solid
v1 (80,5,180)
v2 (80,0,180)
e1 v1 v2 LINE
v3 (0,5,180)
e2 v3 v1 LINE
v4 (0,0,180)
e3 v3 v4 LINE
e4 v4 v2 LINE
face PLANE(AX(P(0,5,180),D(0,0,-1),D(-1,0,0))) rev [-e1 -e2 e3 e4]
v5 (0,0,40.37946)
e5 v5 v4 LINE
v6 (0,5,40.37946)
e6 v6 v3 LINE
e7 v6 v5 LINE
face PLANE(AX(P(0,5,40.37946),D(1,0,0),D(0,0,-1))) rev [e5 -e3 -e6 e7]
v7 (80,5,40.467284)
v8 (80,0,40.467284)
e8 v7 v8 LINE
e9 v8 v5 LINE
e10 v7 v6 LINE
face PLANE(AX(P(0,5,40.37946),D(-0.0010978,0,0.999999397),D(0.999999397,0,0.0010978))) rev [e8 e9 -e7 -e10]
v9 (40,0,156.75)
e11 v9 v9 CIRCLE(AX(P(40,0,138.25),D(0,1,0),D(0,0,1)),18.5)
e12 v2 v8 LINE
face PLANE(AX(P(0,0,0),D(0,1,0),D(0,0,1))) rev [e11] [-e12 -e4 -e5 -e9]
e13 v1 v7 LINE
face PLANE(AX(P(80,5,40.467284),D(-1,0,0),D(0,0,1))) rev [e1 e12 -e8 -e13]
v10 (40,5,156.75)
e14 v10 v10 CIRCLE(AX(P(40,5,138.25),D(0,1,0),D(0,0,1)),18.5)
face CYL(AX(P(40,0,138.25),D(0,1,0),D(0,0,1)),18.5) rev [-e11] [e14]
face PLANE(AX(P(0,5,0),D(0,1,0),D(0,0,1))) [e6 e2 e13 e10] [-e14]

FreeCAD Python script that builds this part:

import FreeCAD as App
import Part
import Sketcher
from FreeCAD import Vector
Q = App.Units.Quantity


def add_polygon(sketch, points):
    """Adds a closed chain of lines whose ends are joined by coincident constraints."""
    first, n = sketch.GeometryCount, len(points)
    for a, b in zip(points, points[1:] + points[:1]):
        sketch.addGeometry(Part.LineSegment(App.Vector(*a, 0), App.Vector(*b, 0)), False)
    for i in range(n):
        sketch.addConstraint(Sketcher.Constraint("Coincident", first + i, 2, first + (i + 1) % n, 1))

doc = App.newDocument("Part")
body = doc.addObject("PartDesign::Body", "Body")

sketch1 = body.newObject("Sketcher::SketchObject", "Sketch")
sketch1.AttachmentSupport = (doc.getObject("XZ_Plane"), [""])
sketch1.MapMode = "FlatFace"
add_polygon(sketch1, [(80, 40.467284), (0, 40.37946), (0, 180), (80, 180)])
sketch1.addGeometry(Part.Circle(Vector(55.5, 138.25, 0), Vector(0, 0, 1), 1.525), False)
sketch1.addGeometry(Part.Circle(Vector(24.5, 138.25, 0), Vector(0, 0, 1), 1.525), False)
sketch1.addGeometry(Part.Circle(Vector(47.75, 124.826606, 0), Vector(0, 0, 1), 1.525), False)
sketch1.addGeometry(Part.Circle(Vector(40, 131.25, 0), Vector(0, 0, 1), 6), False)
sketch1.addGeometry(Part.Circle(Vector(32.25, 124.826606, 0), Vector(0, 0, 1), 1.525), False)
sketch1.addConstraint([
    Sketcher.Constraint("Vertical", 1),
    Sketcher.Constraint("Horizontal", 2),
    Sketcher.Constraint("Vertical", 3),
    Sketcher.Constraint("Equal", 4, 5),
    Sketcher.Constraint("Equal", 5, 6),
    Sketcher.Constraint("Equal", 6, 8),
    Sketcher.Constraint("PointOnObject", 0, 2, -2),
    Sketcher.Constraint("Horizontal", 4, 3, 5, 3),
    Sketcher.Constraint("Horizontal", 6, 3, 8, 3),
    Sketcher.Constraint("Diameter", 7, Q("12 mm")),
    Sketcher.Constraint("Diameter", 4, Q("3.05 mm")),
    Sketcher.Constraint("DistanceX", 2, 1, 2, 2, Q("80 mm")),
    Sketcher.Constraint("DistanceX", -1, 1, 7, 3, Q("40 mm")),
    Sketcher.Constraint("DistanceY", -1, 1, 1, 2, Q("180 mm")),
    Sketcher.Constraint("DistanceX", 5, 3, 4, 3, Q("31 mm")),
    Sketcher.Constraint("DistanceY", 7, 3, 4, 3, Q("7 mm")),
    Sketcher.Constraint("DistanceX", -1, 1, 4, 3, Q("55.5 mm")),
    Sketcher.Constraint("DistanceX", 8, 3, 6, 3, Q("15.5 mm")),
    Sketcher.Constraint("DistanceY", -1, 1, 4, 3, Q("138.25 mm")),
    Sketcher.Constraint("DistanceX", -1, 1, 6, 3, Q("47.75 mm")),
    Sketcher.Constraint("DistanceY", 1, 1, 1, 2, Q("139.62054 mm")),
    Sketcher.Constraint("DistanceY", 3, 2, 3, 1, Q("139.532716 mm")),
    Sketcher.Constraint("DistanceY", -1, 1, 6, 3, Q("124.826606 mm")),
])
pad1 = body.newObject("PartDesign::Pad", "Pad")
pad1.Profile = sketch1
pad1.Length = 5
pad1.Reversed = True

sketch2 = body.newObject("Sketcher::SketchObject", "Sketch001")
sketch2.AttachmentSupport = (doc.getObject("XZ_Plane"), [""])
sketch2.MapMode = "FlatFace"
sketch2.AttachmentOffset = App.Placement(Vector(0, 0, -5), App.Rotation())
sketch2.addGeometry(Part.Circle(Vector(40, 138.25, 0), Vector(0, 0, 1), 18.5), False)
sketch2.addConstraint([
    Sketcher.Constraint("Diameter", 0, Q("37 mm")),
    Sketcher.Constraint("DistanceX", -1, 1, 0, 3, Q("40 mm")),
    Sketcher.Constraint("DistanceY", -1, 1, 0, 3, Q("138.25 mm")),
])
pocket1 = body.newObject("PartDesign::Pocket", "Pocket")
pocket1.Profile = sketch2
pocket1.Type = "ThroughAll"
pocket1.Midplane = True

doc.recompute()
